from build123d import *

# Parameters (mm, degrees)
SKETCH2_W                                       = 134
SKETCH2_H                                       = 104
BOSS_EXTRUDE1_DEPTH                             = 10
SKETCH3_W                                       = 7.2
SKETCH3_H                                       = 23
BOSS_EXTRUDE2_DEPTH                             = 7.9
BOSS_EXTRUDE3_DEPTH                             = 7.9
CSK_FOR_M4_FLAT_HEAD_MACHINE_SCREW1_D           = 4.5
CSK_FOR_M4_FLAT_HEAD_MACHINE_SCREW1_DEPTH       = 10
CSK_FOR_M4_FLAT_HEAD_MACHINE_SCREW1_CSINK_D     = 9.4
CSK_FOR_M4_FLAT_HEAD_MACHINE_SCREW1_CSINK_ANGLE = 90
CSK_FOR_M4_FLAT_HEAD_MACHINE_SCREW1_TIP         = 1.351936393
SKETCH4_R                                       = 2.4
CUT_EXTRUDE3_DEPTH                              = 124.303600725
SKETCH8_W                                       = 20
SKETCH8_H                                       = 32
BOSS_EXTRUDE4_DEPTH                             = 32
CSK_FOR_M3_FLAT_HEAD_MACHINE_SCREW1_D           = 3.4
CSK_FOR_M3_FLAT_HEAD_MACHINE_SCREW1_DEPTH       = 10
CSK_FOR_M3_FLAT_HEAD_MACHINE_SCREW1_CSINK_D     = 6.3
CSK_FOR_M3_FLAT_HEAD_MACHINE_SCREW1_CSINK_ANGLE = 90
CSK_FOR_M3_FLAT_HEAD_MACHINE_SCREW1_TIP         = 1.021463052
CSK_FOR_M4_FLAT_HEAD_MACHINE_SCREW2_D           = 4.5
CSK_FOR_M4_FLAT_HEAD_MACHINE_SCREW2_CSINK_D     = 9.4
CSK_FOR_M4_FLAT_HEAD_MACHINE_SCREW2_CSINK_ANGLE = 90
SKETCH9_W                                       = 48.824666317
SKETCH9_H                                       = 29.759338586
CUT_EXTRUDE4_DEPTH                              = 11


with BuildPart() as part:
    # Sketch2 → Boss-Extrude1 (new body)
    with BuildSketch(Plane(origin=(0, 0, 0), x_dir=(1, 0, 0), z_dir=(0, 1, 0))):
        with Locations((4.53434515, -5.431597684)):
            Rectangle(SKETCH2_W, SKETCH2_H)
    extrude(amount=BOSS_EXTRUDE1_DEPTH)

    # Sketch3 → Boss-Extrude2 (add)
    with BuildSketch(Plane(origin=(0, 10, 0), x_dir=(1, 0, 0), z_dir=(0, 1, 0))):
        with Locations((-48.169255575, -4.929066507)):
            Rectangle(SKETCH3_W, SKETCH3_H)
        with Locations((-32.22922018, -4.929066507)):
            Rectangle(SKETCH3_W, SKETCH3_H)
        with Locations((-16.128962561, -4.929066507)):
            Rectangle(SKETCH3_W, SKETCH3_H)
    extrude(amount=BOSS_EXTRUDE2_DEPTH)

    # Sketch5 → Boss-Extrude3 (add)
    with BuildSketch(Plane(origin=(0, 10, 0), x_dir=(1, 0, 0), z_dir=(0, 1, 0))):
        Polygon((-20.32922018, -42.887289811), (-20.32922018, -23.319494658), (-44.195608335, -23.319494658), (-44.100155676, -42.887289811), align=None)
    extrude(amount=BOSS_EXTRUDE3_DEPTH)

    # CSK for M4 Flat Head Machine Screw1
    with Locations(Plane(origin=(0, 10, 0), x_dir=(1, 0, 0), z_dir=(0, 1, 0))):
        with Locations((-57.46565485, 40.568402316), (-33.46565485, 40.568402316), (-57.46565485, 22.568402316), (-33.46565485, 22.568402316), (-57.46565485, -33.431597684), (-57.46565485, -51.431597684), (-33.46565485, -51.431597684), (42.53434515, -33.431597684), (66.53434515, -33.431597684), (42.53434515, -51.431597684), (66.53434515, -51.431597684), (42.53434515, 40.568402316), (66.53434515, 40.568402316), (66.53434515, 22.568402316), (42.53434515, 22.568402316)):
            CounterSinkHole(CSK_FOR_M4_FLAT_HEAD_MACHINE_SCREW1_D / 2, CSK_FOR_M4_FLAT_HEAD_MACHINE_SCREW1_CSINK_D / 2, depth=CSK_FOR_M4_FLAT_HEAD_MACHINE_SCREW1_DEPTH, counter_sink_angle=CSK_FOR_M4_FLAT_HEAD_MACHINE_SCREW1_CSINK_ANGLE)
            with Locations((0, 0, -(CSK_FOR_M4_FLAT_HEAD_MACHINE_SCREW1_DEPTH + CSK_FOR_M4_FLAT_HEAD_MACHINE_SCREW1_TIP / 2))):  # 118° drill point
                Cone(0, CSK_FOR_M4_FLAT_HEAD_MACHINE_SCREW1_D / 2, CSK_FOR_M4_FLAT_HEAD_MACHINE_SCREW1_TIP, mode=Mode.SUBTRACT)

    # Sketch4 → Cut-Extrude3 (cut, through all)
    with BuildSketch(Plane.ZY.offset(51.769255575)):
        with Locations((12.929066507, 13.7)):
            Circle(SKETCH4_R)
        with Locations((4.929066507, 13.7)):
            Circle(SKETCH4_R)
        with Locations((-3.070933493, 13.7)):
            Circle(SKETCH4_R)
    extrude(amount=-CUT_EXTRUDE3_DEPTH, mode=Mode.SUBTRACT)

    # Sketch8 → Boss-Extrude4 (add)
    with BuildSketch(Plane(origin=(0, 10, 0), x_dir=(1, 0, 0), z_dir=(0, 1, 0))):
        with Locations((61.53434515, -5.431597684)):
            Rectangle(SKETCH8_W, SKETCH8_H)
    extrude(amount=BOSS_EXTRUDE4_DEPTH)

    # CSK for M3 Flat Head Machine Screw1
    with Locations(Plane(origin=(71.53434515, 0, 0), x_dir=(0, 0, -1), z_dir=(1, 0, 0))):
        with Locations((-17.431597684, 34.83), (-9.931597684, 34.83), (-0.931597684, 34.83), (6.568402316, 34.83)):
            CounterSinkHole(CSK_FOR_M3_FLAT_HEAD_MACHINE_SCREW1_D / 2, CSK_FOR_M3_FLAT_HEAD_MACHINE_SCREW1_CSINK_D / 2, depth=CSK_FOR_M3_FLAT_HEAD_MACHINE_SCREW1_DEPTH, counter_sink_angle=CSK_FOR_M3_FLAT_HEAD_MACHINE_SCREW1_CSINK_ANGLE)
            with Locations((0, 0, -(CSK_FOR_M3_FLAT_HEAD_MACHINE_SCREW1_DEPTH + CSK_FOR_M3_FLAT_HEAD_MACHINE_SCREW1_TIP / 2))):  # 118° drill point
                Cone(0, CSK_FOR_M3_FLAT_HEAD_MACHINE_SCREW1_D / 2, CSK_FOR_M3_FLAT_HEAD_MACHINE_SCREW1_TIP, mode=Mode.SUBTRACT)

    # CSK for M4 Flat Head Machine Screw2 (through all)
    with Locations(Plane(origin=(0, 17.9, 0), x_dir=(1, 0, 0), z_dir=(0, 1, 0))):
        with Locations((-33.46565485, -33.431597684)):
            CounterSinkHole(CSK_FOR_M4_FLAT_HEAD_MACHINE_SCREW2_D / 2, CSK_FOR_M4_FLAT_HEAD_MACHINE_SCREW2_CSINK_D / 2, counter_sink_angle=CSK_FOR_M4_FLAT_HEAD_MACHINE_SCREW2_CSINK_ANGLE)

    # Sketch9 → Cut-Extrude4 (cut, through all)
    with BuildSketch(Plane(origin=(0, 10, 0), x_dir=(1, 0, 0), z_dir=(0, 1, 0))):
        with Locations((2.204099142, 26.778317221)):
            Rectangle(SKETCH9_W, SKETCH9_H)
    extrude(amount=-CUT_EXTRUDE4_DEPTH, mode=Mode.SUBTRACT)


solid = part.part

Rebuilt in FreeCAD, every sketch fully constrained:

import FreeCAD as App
import Part
import Sketcher
from FreeCAD import Vector


def add_polygon(sketch, points):
    """Adds a closed chain of lines whose ends are joined by coincident constraints."""
    first, n = sketch.GeometryCount, len(points)
    for a, b in zip(points, points[1:] + points[:1]):
        sketch.addGeometry(Part.LineSegment(App.Vector(*a, 0), App.Vector(*b, 0)), False)
    for i in range(n):
        sketch.addConstraint(Sketcher.Constraint("Coincident", first + i, 2, first + (i + 1) % n, 1))

doc = App.newDocument("Part")
body = doc.addObject("PartDesign::Body", "Body")

sketch1 = body.newObject("Sketcher::SketchObject", "Sketch")
sketch1.AttachmentSupport = (doc.getObject("XZ_Plane"), [""])
sketch1.MapMode = "FlatFace"
add_polygon(sketch1, [(-62, -47), (-62, 57), (72, 57), (72, -47)])
sketch1.addConstraint([
    Sketcher.Constraint("Vertical", 0),
    Sketcher.Constraint("Horizontal", 1),
    Sketcher.Constraint("Vertical", 2),
    Sketcher.Constraint("Horizontal", 3),
    Sketcher.Constraint("DistanceX", 1, 1, 1, 2, 134.0),
    Sketcher.Constraint("DistanceY", 0, 1, 0, 2, 104.0),
    Sketcher.Constraint("DistanceX", 0, 2, -1, 1, 62.465655),
    Sketcher.Constraint("DistanceY", -1, 1, 0, 2, 57.431598),
])
pad1 = body.newObject("PartDesign::Pad", "Pad")
pad1.Profile = sketch1
pad1.Length = 10
pad1.Reversed = True

sketch2 = body.newObject("Sketcher::SketchObject", "Sketch001")
sketch2.AttachmentSupport = (doc.getObject("XZ_Plane"), [""])
sketch2.MapMode = "FlatFace"
sketch2.AttachmentOffset = App.Placement(Vector(0, 0, -10), App.Rotation())
add_polygon(sketch2, [(-52, -7), (-52, 16), (-45, 16), (-45, -7)])
add_polygon(sketch2, [(-36, -7), (-36, 16), (-29, 16), (-29, -7)])
add_polygon(sketch2, [(-20, -7), (-20, 16), (-13, 16), (-13, -7)])
sketch2.addConstraint([
    Sketcher.Constraint("Vertical", 0),
    Sketcher.Constraint("Horizontal", 1),
    Sketcher.Constraint("Vertical", 2),
    Sketcher.Constraint("Horizontal", 3),
    Sketcher.Constraint("Vertical", 4),
    Sketcher.Constraint("Horizontal", 5),
    Sketcher.Constraint("Vertical", 6),
    Sketcher.Constraint("Horizontal", 7),
    Sketcher.Constraint("Vertical", 8),
    Sketcher.Constraint("Horizontal", 9),
    Sketcher.Constraint("Vertical", 10),
    Sketcher.Constraint("Horizontal", 11),
    Sketcher.Constraint("Horizontal", 1, 2, 4, 2),
    Sketcher.Constraint("Horizontal", 3, 2, 6, 2),
    Sketcher.Constraint("Horizontal", 5, 2, 8, 2),
    Sketcher.Constraint("Horizontal", 7, 2, 10, 2),
    Sketcher.Constraint("Equal", 3, 5),
    Sketcher.Constraint("Equal", 7, 9),
    Sketcher.Constraint("DistanceY", 0, 1, 0, 2, 23.0),
    Sketcher.Constraint("DistanceX", 1, 1, 1, 2, 7.2),
    Sketcher.Constraint("DistanceX", 4, 2, -1, 1, 35.82922),
    Sketcher.Constraint("DistanceX", 0, 2, -1, 1, 51.769256),
    Sketcher.Constraint("DistanceY", -1, 1, 0, 2, 16.429067),
    Sketcher.Constraint("DistanceX", 8, 2, -1, 1, 19.728963),
])
pad2 = body.newObject("PartDesign::Pad", "Pad001")
pad2.Profile = sketch2
pad2.Length = 7.9
pad2.Reversed = True

sketch3 = body.newObject("Sketcher::SketchObject", "Sketch002")
sketch3.AttachmentSupport = (doc.getObject("XZ_Plane"), [""])
sketch3.MapMode = "FlatFace"
sketch3.AttachmentOffset = App.Placement(Vector(0, 0, -10), App.Rotation())
add_polygon(sketch3, [(-20, 43), (-20, 23), (-44, 23), (-44, 43)])
sketch3.addConstraint([
    Sketcher.Constraint("Vertical", 0),
    Sketcher.Constraint("Horizontal", 1),
    Sketcher.Constraint("Horizontal", 3),
    Sketcher.Constraint("DistanceX", 1, 2, 1, 1, 23.866388),
    Sketcher.Constraint("DistanceX", 3, 1, 3, 2, 23.770935),
    Sketcher.Constraint("DistanceY", 0, 2, 0, 1, 19.567795),
    Sketcher.Constraint("DistanceX", 0, 2, -1, 1, 20.32922),
    Sketcher.Constraint("DistanceY", -1, 1, 2, 2, 42.88729),
])
pad3 = body.newObject("PartDesign::Pad", "Pad002")
pad3.Profile = sketch3
pad3.Length = 7.9
pad3.Reversed = True

sketch4 = body.newObject("Sketcher::SketchObject", "Sketch003")
sketch4.AttachmentSupport = (doc.getObject("XZ_Plane"), [""])
sketch4.MapMode = "FlatFace"
sketch4.AttachmentOffset = App.Placement(Vector(0, 0, -10), App.Rotation())
sketch4.addGeometry([
    Part.Circle(Vector(-57.5, -40.6, 0), Vector(0, 0, 1), 2.2),
    Part.Circle(Vector(-33.5, -40.6, 0), Vector(0, 0, 1), 2.2),
    Part.Circle(Vector(-57.5, -22.6, 0), Vector(0, 0, 1), 2.2),
    Part.Circle(Vector(-33.5, -22.6, 0), Vector(0, 0, 1), 2.2),
    Part.Circle(Vector(-57.5, 33.4, 0), Vector(0, 0, 1), 2.2),
    Part.Circle(Vector(-57.5, 51.4, 0), Vector(0, 0, 1), 2.2),
    Part.Circle(Vector(-33.5, 51.4, 0), Vector(0, 0, 1), 2.2),
    Part.Circle(Vector(42.5, 33.4, 0), Vector(0, 0, 1), 2.2),
    Part.Circle(Vector(66.5, 33.4, 0), Vector(0, 0, 1), 2.2),
    Part.Circle(Vector(42.5, 51.4, 0), Vector(0, 0, 1), 2.2),
    Part.Circle(Vector(66.5, 51.4, 0), Vector(0, 0, 1), 2.2),
    Part.Circle(Vector(42.5, -40.6, 0), Vector(0, 0, 1), 2.2),
    Part.Circle(Vector(66.5, -40.6, 0), Vector(0, 0, 1), 2.2),
    Part.Circle(Vector(66.5, -22.6, 0), Vector(0, 0, 1), 2.2),
    Part.Circle(Vector(42.5, -22.6, 0), Vector(0, 0, 1), 2.2),
], False)
sketch4.addConstraint([
    Sketcher.Constraint("Equal", 0, 1),
    Sketcher.Constraint("Equal", 1, 2),
    Sketcher.Constraint("Equal", 2, 3),
    Sketcher.Constraint("Equal", 3, 4),
    Sketcher.Constraint("Equal", 4, 5),
    Sketcher.Constraint("Equal", 5, 6),
    Sketcher.Constraint("Equal", 6, 7),
    Sketcher.Constraint("Equal", 7, 8),
    Sketcher.Constraint("Equal", 8, 9),
    Sketcher.Constraint("Equal", 9, 10),
    Sketcher.Constraint("Equal", 10, 11),
    Sketcher.Constraint("Equal", 11, 12),
    Sketcher.Constraint("Equal", 12, 13),
    Sketcher.Constraint("Equal", 13, 14),
    Sketcher.Constraint("Horizontal", 0, 3, 1, 3),
    Sketcher.Constraint("Horizontal", 2, 3, 3, 3),
    Sketcher.Constraint("Horizontal", 5, 3, 6, 3),
    Sketcher.Constraint("Horizontal", 4, 3, 7, 3),
    Sketcher.Constraint("Horizontal", 7, 3, 8, 3),
    Sketcher.Constraint("Horizontal", 6, 3, 9, 3),
    Sketcher.Constraint("Horizontal", 9, 3, 10, 3),
    Sketcher.Constraint("Horizontal", 1, 3, 11, 3),
    Sketcher.Constraint("Horizontal", 11, 3, 12, 3),
    Sketcher.Constraint("Horizontal", 3, 3, 13, 3),
    Sketcher.Constraint("Horizontal", 13, 3, 14, 3),
    Sketcher.Constraint("Vertical", 0, 3, 2, 3),
    Sketcher.Constraint("Vertical", 1, 3, 3, 3),
    Sketcher.Constraint("Vertical", 2, 3, 4, 3),
    Sketcher.Constraint("Vertical", 4, 3, 5, 3),
    Sketcher.Constraint("Vertical", 3, 3, 6, 3),
    Sketcher.Constraint("Vertical", 7, 3, 9, 3),
    Sketcher.Constraint("Vertical", 8, 3, 10, 3),
    Sketcher.Constraint("Vertical", 9, 3, 11, 3),
    Sketcher.Constraint("Vertical", 10, 3, 12, 3),
    Sketcher.Constraint("Vertical", 12, 3, 13, 3),
    Sketcher.Constraint("Vertical", 11, 3, 14, 3),
    Sketcher.Constraint("Diameter", 0, 4.5),
    Sketcher.Constraint("DistanceX", 0, 3, 1, 3, 24.0),
    Sketcher.Constraint("DistanceY", 0, 3, 2, 3, 18.0),
    Sketcher.Constraint("DistanceY", 2, 3, 4, 3, 56.0),
    Sketcher.Constraint("DistanceY", 4, 3, 5, 3, 18.0),
    Sketcher.Constraint("DistanceX", 6, 3, 7, 3, 76.0),
    Sketcher.Constraint("DistanceX", 7, 3, 8, 3, 24.0),
    Sketcher.Constraint("DistanceX", 0, 3, -1, 1, 57.465655),
    Sketcher.Constraint("DistanceY", 0, 3, -1, 1, 40.568402),
])
doc.recompute()
hole = body.newObject("PartDesign::Hole", "Hole")
hole.Profile = sketch4
hole.ThreadType = "None"
hole.Diameter = 4.5
hole.DepthType = "Dimension"
hole.Depth = 10
hole.DrillPoint = "Angled"
hole.DrillPointAngle = 118
hole.HoleCutType = "Countersink"
hole.HoleCutDiameter = 9.4
hole.HoleCutCountersinkAngle = 90
hole.Reversed = True

sketch5 = body.newObject("Sketcher::SketchObject", "Sketch004")
sketch5.AttachmentSupport = (doc.getObject("YZ_Plane"), [""])
sketch5.MapMode = "FlatFace"
sketch5.AttachmentOffset = App.Placement(Vector(0, 0, -51.769256), App.Rotation())
sketch5.addGeometry([
    Part.Circle(Vector(13.7, 12.9, 0), Vector(0, 0, 1), 2.4),
    Part.Circle(Vector(13.7, 4.9, 0), Vector(0, 0, 1), 2.4),
    Part.Circle(Vector(13.7, -3.1, 0), Vector(0, 0, 1), 2.4),
], False)
sketch5.addConstraint([
    Sketcher.Constraint("Equal", 0, 1),
    Sketcher.Constraint("Equal", 1, 2),
    Sketcher.Constraint("Vertical", 0, 3, 1, 3),
    Sketcher.Constraint("Vertical", 1, 3, 2, 3),
    Sketcher.Constraint("Diameter", 0, 4.8),
    Sketcher.Constraint("DistanceY", 1, 3, 0, 3, 8.0),
    Sketcher.Constraint("DistanceY", 2, 3, 1, 3, 8.0),
    Sketcher.Constraint("DistanceX", -1, 1, 0, 3, 13.7),
    Sketcher.Constraint("DistanceY", -1, 1, 0, 3, 12.929067),
])
pocket1 = body.newObject("PartDesign::Pocket", "Pocket")
pocket1.Profile = sketch5
pocket1.Type = "ThroughAll"
pocket1.Reversed = True

sketch6 = body.newObject("Sketcher::SketchObject", "Sketch005")
sketch6.AttachmentSupport = (doc.getObject("XZ_Plane"), [""])
sketch6.MapMode = "FlatFace"
sketch6.AttachmentOffset = App.Placement(Vector(0, 0, -10), App.Rotation())
add_polygon(sketch6, [(52, -11), (52, 21), (72, 21), (72, -11)])
sketch6.addConstraint([
    Sketcher.Constraint("Vertical", 0),
    Sketcher.Constraint("Horizontal", 1),
    Sketcher.Constraint("Vertical", 2),
    Sketcher.Constraint("Horizontal", 3),
    Sketcher.Constraint("DistanceX", 1, 1, 1, 2, 20.0),
    Sketcher.Constraint("DistanceY", 0, 1, 0, 2, 32.0),
    Sketcher.Constraint("DistanceX", -1, 1, 0, 2, 51.534345),
    Sketcher.Constraint("DistanceY", -1, 1, 0, 2, 21.431598),
])
pad4 = body.newObject("PartDesign::Pad", "Pad003")
pad4.Profile = sketch6
pad4.Length = 32
pad4.Reversed = True

sketch7 = body.newObject("Sketcher::SketchObject", "Sketch006")
sketch7.AttachmentSupport = (doc.getObject("YZ_Plane"), [""])
sketch7.MapMode = "FlatFace"
sketch7.AttachmentOffset = App.Placement(Vector(0, 0, 71.534345), App.Rotation())
sketch7.addGeometry([
    Part.Circle(Vector(34.8, 17.4, 0), Vector(0, 0, 1), 1.7),
    Part.Circle(Vector(34.8, 9.9, 0), Vector(0, 0, 1), 1.7),
    Part.Circle(Vector(34.8, 0.9, 0), Vector(0, 0, 1), 1.7),
    Part.Circle(Vector(34.8, -6.6, 0), Vector(0, 0, 1), 1.7),
], False)
sketch7.addConstraint([
    Sketcher.Constraint("Equal", 0, 1),
    Sketcher.Constraint("Equal", 1, 2),
    Sketcher.Constraint("Equal", 2, 3),
    Sketcher.Constraint("Vertical", 0, 3, 1, 3),
    Sketcher.Constraint("Vertical", 1, 3, 2, 3),
    Sketcher.Constraint("Vertical", 2, 3, 3, 3),
    Sketcher.Constraint("Diameter", 0, 3.4),
    Sketcher.Constraint("DistanceY", 2, 3, 1, 3, 9.0),
    Sketcher.Constraint("DistanceY", 3, 3, 0, 3, 24.0),
    Sketcher.Constraint("DistanceY", 1, 3, 0, 3, 7.5),
    Sketcher.Constraint("DistanceX", -1, 1, 0, 3, 34.83),
    Sketcher.Constraint("DistanceY", -1, 1, 0, 3, 17.431598),
])
doc.recompute()
hole2 = body.newObject("PartDesign::Hole", "Hole001")
hole2.Profile = sketch7
hole2.ThreadType = "None"
hole2.Diameter = 3.4
hole2.DepthType = "Dimension"
hole2.Depth = 10
hole2.DrillPoint = "Angled"
hole2.DrillPointAngle = 118
hole2.HoleCutType = "Countersink"
hole2.HoleCutDiameter = 6.3
hole2.HoleCutCountersinkAngle = 90

sketch8 = body.newObject("Sketcher::SketchObject", "Sketch007")
sketch8.AttachmentSupport = (doc.getObject("XZ_Plane"), [""])
sketch8.MapMode = "FlatFace"
sketch8.AttachmentOffset = App.Placement(Vector(0, 0, -17.9), App.Rotation())
sketch8.addGeometry(Part.Circle(Vector(-33.5, 33.4, 0), Vector(0, 0, 1), 2.2), False)
sketch8.addConstraint([
    Sketcher.Constraint("Diameter", 0, 4.5),
    Sketcher.Constraint("DistanceX", 0, 3, -1, 1, 33.465655),
    Sketcher.Constraint("DistanceY", -1, 1, 0, 3, 33.431598),
])
doc.recompute()
hole3 = body.newObject("PartDesign::Hole", "Hole002")
hole3.Profile = sketch8
hole3.ThreadType = "None"
hole3.Diameter = 4.5
hole3.DepthType = "ThroughAll"
hole3.HoleCutType = "Countersink"
hole3.HoleCutDiameter = 9.4
hole3.HoleCutCountersinkAngle = 90
hole3.Reversed = True

sketch9 = body.newObject("Sketcher::SketchObject", "Sketch008")
sketch9.AttachmentSupport = (doc.getObject("XZ_Plane"), [""])
sketch9.MapMode = "FlatFace"
sketch9.AttachmentOffset = App.Placement(Vector(0, 0, -10), App.Rotation())
add_polygon(sketch9, [(-22, -42), (-22, -12), (27, -12), (27, -42)])
sketch9.addConstraint([
    Sketcher.Constraint("Vertical", 0),
    Sketcher.Constraint("Horizontal", 1),
    Sketcher.Constraint("Vertical", 2),
    Sketcher.Constraint("Horizontal", 3),
    Sketcher.Constraint("DistanceY", 0, 1, 0, 2, 29.759339),
    Sketcher.Constraint("DistanceX", 1, 1, 1, 2, 48.824666),
    Sketcher.Constraint("DistanceX", 0, 2, -1, 1, 22.208234),
    Sketcher.Constraint("DistanceY", 0, 2, -1, 1, 11.898648),
])
pocket2 = body.newObject("PartDesign::Pocket", "Pocket001")
pocket2.Profile = sketch9
pocket2.Type = "ThroughAll"
pocket2.Reversed = True

doc.recompute()
